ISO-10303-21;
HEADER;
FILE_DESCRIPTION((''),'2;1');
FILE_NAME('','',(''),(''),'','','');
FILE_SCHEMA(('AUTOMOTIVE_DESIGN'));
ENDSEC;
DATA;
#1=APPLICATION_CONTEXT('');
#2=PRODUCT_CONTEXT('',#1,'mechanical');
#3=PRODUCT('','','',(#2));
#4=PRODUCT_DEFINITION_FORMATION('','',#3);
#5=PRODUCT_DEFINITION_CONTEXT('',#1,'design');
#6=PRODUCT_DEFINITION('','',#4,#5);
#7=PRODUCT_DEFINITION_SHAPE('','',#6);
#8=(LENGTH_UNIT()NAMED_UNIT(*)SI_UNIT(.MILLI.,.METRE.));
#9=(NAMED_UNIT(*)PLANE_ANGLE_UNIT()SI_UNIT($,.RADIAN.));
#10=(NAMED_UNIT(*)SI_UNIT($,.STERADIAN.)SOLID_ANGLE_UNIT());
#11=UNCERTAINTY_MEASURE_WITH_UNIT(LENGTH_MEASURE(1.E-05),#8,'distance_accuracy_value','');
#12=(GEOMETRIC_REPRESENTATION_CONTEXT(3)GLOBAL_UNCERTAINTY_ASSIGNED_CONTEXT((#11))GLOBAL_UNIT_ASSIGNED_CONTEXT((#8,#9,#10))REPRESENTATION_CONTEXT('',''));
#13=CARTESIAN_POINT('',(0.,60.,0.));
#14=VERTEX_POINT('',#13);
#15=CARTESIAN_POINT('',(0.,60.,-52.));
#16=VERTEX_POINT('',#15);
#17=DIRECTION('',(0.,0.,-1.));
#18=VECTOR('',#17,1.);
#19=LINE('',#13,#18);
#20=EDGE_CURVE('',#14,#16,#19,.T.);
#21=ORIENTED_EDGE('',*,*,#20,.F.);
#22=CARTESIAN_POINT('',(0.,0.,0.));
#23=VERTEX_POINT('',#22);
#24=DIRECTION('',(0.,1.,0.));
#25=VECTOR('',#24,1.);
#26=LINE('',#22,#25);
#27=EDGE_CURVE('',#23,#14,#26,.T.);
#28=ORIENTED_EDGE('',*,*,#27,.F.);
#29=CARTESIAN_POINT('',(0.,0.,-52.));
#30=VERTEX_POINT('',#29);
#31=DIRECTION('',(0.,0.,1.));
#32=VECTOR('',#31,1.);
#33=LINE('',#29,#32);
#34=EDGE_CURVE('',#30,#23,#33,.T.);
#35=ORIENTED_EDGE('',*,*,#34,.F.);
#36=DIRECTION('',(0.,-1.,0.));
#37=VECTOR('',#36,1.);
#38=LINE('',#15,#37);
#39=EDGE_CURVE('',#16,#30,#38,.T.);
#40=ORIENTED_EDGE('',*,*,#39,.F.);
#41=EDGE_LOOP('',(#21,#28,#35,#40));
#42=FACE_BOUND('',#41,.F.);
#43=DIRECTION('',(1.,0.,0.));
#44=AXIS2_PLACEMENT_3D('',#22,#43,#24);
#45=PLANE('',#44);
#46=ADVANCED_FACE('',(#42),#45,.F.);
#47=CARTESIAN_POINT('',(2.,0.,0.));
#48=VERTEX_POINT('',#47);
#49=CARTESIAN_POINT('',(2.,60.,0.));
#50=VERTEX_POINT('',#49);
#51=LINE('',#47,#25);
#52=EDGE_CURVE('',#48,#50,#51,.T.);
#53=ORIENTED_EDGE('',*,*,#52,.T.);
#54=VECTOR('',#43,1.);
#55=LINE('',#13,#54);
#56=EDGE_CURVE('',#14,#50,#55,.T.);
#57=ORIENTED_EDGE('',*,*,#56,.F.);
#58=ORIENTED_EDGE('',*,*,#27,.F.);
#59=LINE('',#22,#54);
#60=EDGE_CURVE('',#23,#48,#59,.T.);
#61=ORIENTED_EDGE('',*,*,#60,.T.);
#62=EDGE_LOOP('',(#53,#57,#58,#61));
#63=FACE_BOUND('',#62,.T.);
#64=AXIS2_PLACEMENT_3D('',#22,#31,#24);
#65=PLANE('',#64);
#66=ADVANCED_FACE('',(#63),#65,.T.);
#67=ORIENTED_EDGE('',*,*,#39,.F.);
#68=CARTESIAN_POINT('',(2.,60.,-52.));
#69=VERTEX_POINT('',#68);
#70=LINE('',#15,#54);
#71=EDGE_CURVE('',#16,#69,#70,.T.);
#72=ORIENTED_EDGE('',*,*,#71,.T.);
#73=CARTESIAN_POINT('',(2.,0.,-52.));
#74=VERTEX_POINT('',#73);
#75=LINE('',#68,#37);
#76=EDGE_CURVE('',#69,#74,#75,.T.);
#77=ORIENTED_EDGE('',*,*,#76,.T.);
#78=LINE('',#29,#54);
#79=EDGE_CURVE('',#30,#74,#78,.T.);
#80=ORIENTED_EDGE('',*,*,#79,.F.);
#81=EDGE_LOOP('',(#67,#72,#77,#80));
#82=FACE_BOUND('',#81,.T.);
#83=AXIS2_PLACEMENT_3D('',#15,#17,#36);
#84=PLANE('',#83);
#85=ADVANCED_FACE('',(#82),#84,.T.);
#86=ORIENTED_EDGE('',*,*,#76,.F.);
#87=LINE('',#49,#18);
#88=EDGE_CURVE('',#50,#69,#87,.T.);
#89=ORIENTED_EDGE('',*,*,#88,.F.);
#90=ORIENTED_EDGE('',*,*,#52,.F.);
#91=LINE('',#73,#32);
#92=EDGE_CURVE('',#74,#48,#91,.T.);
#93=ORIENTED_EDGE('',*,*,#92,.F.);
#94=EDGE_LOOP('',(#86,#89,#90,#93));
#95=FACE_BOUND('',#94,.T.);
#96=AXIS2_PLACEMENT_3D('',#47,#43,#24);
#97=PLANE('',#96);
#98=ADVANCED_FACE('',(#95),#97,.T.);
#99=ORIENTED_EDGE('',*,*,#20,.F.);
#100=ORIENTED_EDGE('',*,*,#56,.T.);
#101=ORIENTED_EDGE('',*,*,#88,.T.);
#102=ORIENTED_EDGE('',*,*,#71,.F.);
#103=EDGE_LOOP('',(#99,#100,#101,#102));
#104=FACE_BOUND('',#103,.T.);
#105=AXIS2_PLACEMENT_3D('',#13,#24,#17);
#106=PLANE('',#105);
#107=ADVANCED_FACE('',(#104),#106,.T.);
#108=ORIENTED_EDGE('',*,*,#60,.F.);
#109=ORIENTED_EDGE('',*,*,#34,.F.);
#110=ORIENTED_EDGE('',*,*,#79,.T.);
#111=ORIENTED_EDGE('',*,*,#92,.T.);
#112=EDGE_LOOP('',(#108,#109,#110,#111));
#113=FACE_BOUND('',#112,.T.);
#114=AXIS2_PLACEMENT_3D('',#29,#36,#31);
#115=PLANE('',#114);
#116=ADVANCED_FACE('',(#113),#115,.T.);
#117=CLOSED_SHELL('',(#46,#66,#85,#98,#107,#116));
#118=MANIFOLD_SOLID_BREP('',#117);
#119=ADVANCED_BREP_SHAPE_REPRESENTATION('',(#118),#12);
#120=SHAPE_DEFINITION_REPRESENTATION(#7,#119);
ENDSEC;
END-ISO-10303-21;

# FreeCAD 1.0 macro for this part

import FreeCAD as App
import Part
import Sketcher
from FreeCAD import Vector
Q = App.Units.Quantity

doc = App.newDocument("Part")
body = doc.addObject("PartDesign::Body", "Body")

# Sketch on YZ plane
sketch1 = doc.addObject("Sketcher::SketchObject", "Sketch")
body.addObject(sketch1)
sketch1.AttachmentSupport = (doc.YZ_Plane, [""])
sketch1.MapMode = "FlatFace"
sketch1.addGeometry(Part.LineSegment(Vector(60, 0, 0), Vector(0, 0, 0)), False)
sketch1.addGeometry(Part.LineSegment(Vector(0, 0, 0), Vector(0, -52, 0)), False)
sketch1.addGeometry(Part.LineSegment(Vector(0, -52, 0), Vector(60, -52, 0)), False)
sketch1.addGeometry(Part.LineSegment(Vector(60, -52, 0), Vector(60, 0, 0)), False)
sketch1.addConstraint(Sketcher.Constraint("Coincident", 0, 2, 1, 1))
sketch1.addConstraint(Sketcher.Constraint("Coincident", 1, 2, 2, 1))
sketch1.addConstraint(Sketcher.Constraint("Coincident", 2, 2, 3, 1))
sketch1.addConstraint(Sketcher.Constraint("Coincident", 3, 2, 0, 1))
sketch1.addConstraint(Sketcher.Constraint("Horizontal", 0))
sketch1.addConstraint(Sketcher.Constraint("Vertical", 1))
sketch1.addConstraint(Sketcher.Constraint("Horizontal", 2))
sketch1.addConstraint(Sketcher.Constraint("Vertical", 3))
sketch1.addConstraint(Sketcher.Constraint("Coincident", 0, 2, -1, 1))
sketch1.addConstraint(Sketcher.Constraint("DistanceX", 0, 2, 0, 1, Q("60 mm")))
sketch1.addConstraint(Sketcher.Constraint("DistanceY", 1, 2, 1, 1, Q("52 mm")))
pad1 = doc.addObject("PartDesign::Pad", "Pad")
body.addObject(pad1)
pad1.Profile = sketch1
pad1.Length = 2

doc.recompute()
